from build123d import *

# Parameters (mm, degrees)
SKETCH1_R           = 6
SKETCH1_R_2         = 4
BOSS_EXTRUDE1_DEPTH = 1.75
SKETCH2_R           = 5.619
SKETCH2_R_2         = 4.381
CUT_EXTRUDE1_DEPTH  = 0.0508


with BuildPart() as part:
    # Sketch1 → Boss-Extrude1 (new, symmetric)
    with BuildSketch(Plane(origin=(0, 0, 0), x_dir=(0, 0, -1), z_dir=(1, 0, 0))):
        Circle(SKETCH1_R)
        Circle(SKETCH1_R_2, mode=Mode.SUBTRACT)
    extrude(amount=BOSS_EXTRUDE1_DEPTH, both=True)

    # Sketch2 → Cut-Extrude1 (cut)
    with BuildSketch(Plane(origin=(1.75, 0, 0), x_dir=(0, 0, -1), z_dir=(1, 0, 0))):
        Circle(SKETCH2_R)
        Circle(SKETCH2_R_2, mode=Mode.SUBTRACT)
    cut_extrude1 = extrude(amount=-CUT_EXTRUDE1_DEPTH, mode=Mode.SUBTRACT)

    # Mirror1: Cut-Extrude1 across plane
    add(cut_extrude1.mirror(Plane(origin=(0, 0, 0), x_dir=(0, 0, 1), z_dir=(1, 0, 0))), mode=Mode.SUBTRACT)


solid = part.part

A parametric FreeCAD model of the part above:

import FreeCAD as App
import Part
import Sketcher
from FreeCAD import Vector
Q = App.Units.Quantity

doc = App.newDocument("Part")
body = doc.addObject("PartDesign::Body", "Body")

# Sketch on YZ plane
sketch1 = body.newObject("Sketcher::SketchObject", "Sketch")
sketch1.AttachmentSupport = (doc.getObject("YZ_Plane"), [""])
sketch1.MapMode = "FlatFace"
sketch1.addGeometry([
    Part.Circle(Vector(0, 0, 0), Vector(0, 0, 1), 6),
    Part.Circle(Vector(0, 0, 0), Vector(0, 0, 1), 4),
], False)
sketch1.addConstraint([
    Sketcher.Constraint("Coincident", 0, 3, -1, 1),
    Sketcher.Constraint("Coincident", 1, 3, -1, 1),
    Sketcher.Constraint("Diameter", 0, Q("12 mm")),
    Sketcher.Constraint("Diameter", 1, Q("8 mm")),
])
pad1 = body.newObject("PartDesign::Pad", "Pad")
pad1.Profile = sketch1
pad1.Length = 3.5
pad1.Midplane = True

# Sketch on YZ plane
sketch2 = body.newObject("Sketcher::SketchObject", "Sketch001")
sketch2.AttachmentSupport = (doc.getObject("YZ_Plane"), [""])
sketch2.MapMode = "FlatFace"
sketch2.AttachmentOffset = App.Placement(Vector(0, 0, 1.75), App.Rotation())
sketch2.addGeometry([
    Part.Circle(Vector(0, 0, 0), Vector(0, 0, 1), 5.619),
    Part.Circle(Vector(0, 0, 0), Vector(0, 0, 1), 4.381),
], False)
sketch2.addConstraint([
    Sketcher.Constraint("Coincident", 0, 3, -1, 1),
    Sketcher.Constraint("Coincident", 1, 3, -1, 1),
    Sketcher.Constraint("Diameter", 0, Q("11.238 mm")),
    Sketcher.Constraint("Diameter", 1, Q("8.762 mm")),
])
pocket1 = body.newObject("PartDesign::Pocket", "Pocket")
pocket1.Profile = sketch2
pocket1.Length = 0.0508
doc.recompute()

mirrored = body.newObject("PartDesign::Mirrored", "Mirrored")
mirrored.Originals = [pocket1]
mirrored.MirrorPlane = (doc.getObject("YZ_Plane"), [""])
body.Tip = mirrored

doc.recompute()
